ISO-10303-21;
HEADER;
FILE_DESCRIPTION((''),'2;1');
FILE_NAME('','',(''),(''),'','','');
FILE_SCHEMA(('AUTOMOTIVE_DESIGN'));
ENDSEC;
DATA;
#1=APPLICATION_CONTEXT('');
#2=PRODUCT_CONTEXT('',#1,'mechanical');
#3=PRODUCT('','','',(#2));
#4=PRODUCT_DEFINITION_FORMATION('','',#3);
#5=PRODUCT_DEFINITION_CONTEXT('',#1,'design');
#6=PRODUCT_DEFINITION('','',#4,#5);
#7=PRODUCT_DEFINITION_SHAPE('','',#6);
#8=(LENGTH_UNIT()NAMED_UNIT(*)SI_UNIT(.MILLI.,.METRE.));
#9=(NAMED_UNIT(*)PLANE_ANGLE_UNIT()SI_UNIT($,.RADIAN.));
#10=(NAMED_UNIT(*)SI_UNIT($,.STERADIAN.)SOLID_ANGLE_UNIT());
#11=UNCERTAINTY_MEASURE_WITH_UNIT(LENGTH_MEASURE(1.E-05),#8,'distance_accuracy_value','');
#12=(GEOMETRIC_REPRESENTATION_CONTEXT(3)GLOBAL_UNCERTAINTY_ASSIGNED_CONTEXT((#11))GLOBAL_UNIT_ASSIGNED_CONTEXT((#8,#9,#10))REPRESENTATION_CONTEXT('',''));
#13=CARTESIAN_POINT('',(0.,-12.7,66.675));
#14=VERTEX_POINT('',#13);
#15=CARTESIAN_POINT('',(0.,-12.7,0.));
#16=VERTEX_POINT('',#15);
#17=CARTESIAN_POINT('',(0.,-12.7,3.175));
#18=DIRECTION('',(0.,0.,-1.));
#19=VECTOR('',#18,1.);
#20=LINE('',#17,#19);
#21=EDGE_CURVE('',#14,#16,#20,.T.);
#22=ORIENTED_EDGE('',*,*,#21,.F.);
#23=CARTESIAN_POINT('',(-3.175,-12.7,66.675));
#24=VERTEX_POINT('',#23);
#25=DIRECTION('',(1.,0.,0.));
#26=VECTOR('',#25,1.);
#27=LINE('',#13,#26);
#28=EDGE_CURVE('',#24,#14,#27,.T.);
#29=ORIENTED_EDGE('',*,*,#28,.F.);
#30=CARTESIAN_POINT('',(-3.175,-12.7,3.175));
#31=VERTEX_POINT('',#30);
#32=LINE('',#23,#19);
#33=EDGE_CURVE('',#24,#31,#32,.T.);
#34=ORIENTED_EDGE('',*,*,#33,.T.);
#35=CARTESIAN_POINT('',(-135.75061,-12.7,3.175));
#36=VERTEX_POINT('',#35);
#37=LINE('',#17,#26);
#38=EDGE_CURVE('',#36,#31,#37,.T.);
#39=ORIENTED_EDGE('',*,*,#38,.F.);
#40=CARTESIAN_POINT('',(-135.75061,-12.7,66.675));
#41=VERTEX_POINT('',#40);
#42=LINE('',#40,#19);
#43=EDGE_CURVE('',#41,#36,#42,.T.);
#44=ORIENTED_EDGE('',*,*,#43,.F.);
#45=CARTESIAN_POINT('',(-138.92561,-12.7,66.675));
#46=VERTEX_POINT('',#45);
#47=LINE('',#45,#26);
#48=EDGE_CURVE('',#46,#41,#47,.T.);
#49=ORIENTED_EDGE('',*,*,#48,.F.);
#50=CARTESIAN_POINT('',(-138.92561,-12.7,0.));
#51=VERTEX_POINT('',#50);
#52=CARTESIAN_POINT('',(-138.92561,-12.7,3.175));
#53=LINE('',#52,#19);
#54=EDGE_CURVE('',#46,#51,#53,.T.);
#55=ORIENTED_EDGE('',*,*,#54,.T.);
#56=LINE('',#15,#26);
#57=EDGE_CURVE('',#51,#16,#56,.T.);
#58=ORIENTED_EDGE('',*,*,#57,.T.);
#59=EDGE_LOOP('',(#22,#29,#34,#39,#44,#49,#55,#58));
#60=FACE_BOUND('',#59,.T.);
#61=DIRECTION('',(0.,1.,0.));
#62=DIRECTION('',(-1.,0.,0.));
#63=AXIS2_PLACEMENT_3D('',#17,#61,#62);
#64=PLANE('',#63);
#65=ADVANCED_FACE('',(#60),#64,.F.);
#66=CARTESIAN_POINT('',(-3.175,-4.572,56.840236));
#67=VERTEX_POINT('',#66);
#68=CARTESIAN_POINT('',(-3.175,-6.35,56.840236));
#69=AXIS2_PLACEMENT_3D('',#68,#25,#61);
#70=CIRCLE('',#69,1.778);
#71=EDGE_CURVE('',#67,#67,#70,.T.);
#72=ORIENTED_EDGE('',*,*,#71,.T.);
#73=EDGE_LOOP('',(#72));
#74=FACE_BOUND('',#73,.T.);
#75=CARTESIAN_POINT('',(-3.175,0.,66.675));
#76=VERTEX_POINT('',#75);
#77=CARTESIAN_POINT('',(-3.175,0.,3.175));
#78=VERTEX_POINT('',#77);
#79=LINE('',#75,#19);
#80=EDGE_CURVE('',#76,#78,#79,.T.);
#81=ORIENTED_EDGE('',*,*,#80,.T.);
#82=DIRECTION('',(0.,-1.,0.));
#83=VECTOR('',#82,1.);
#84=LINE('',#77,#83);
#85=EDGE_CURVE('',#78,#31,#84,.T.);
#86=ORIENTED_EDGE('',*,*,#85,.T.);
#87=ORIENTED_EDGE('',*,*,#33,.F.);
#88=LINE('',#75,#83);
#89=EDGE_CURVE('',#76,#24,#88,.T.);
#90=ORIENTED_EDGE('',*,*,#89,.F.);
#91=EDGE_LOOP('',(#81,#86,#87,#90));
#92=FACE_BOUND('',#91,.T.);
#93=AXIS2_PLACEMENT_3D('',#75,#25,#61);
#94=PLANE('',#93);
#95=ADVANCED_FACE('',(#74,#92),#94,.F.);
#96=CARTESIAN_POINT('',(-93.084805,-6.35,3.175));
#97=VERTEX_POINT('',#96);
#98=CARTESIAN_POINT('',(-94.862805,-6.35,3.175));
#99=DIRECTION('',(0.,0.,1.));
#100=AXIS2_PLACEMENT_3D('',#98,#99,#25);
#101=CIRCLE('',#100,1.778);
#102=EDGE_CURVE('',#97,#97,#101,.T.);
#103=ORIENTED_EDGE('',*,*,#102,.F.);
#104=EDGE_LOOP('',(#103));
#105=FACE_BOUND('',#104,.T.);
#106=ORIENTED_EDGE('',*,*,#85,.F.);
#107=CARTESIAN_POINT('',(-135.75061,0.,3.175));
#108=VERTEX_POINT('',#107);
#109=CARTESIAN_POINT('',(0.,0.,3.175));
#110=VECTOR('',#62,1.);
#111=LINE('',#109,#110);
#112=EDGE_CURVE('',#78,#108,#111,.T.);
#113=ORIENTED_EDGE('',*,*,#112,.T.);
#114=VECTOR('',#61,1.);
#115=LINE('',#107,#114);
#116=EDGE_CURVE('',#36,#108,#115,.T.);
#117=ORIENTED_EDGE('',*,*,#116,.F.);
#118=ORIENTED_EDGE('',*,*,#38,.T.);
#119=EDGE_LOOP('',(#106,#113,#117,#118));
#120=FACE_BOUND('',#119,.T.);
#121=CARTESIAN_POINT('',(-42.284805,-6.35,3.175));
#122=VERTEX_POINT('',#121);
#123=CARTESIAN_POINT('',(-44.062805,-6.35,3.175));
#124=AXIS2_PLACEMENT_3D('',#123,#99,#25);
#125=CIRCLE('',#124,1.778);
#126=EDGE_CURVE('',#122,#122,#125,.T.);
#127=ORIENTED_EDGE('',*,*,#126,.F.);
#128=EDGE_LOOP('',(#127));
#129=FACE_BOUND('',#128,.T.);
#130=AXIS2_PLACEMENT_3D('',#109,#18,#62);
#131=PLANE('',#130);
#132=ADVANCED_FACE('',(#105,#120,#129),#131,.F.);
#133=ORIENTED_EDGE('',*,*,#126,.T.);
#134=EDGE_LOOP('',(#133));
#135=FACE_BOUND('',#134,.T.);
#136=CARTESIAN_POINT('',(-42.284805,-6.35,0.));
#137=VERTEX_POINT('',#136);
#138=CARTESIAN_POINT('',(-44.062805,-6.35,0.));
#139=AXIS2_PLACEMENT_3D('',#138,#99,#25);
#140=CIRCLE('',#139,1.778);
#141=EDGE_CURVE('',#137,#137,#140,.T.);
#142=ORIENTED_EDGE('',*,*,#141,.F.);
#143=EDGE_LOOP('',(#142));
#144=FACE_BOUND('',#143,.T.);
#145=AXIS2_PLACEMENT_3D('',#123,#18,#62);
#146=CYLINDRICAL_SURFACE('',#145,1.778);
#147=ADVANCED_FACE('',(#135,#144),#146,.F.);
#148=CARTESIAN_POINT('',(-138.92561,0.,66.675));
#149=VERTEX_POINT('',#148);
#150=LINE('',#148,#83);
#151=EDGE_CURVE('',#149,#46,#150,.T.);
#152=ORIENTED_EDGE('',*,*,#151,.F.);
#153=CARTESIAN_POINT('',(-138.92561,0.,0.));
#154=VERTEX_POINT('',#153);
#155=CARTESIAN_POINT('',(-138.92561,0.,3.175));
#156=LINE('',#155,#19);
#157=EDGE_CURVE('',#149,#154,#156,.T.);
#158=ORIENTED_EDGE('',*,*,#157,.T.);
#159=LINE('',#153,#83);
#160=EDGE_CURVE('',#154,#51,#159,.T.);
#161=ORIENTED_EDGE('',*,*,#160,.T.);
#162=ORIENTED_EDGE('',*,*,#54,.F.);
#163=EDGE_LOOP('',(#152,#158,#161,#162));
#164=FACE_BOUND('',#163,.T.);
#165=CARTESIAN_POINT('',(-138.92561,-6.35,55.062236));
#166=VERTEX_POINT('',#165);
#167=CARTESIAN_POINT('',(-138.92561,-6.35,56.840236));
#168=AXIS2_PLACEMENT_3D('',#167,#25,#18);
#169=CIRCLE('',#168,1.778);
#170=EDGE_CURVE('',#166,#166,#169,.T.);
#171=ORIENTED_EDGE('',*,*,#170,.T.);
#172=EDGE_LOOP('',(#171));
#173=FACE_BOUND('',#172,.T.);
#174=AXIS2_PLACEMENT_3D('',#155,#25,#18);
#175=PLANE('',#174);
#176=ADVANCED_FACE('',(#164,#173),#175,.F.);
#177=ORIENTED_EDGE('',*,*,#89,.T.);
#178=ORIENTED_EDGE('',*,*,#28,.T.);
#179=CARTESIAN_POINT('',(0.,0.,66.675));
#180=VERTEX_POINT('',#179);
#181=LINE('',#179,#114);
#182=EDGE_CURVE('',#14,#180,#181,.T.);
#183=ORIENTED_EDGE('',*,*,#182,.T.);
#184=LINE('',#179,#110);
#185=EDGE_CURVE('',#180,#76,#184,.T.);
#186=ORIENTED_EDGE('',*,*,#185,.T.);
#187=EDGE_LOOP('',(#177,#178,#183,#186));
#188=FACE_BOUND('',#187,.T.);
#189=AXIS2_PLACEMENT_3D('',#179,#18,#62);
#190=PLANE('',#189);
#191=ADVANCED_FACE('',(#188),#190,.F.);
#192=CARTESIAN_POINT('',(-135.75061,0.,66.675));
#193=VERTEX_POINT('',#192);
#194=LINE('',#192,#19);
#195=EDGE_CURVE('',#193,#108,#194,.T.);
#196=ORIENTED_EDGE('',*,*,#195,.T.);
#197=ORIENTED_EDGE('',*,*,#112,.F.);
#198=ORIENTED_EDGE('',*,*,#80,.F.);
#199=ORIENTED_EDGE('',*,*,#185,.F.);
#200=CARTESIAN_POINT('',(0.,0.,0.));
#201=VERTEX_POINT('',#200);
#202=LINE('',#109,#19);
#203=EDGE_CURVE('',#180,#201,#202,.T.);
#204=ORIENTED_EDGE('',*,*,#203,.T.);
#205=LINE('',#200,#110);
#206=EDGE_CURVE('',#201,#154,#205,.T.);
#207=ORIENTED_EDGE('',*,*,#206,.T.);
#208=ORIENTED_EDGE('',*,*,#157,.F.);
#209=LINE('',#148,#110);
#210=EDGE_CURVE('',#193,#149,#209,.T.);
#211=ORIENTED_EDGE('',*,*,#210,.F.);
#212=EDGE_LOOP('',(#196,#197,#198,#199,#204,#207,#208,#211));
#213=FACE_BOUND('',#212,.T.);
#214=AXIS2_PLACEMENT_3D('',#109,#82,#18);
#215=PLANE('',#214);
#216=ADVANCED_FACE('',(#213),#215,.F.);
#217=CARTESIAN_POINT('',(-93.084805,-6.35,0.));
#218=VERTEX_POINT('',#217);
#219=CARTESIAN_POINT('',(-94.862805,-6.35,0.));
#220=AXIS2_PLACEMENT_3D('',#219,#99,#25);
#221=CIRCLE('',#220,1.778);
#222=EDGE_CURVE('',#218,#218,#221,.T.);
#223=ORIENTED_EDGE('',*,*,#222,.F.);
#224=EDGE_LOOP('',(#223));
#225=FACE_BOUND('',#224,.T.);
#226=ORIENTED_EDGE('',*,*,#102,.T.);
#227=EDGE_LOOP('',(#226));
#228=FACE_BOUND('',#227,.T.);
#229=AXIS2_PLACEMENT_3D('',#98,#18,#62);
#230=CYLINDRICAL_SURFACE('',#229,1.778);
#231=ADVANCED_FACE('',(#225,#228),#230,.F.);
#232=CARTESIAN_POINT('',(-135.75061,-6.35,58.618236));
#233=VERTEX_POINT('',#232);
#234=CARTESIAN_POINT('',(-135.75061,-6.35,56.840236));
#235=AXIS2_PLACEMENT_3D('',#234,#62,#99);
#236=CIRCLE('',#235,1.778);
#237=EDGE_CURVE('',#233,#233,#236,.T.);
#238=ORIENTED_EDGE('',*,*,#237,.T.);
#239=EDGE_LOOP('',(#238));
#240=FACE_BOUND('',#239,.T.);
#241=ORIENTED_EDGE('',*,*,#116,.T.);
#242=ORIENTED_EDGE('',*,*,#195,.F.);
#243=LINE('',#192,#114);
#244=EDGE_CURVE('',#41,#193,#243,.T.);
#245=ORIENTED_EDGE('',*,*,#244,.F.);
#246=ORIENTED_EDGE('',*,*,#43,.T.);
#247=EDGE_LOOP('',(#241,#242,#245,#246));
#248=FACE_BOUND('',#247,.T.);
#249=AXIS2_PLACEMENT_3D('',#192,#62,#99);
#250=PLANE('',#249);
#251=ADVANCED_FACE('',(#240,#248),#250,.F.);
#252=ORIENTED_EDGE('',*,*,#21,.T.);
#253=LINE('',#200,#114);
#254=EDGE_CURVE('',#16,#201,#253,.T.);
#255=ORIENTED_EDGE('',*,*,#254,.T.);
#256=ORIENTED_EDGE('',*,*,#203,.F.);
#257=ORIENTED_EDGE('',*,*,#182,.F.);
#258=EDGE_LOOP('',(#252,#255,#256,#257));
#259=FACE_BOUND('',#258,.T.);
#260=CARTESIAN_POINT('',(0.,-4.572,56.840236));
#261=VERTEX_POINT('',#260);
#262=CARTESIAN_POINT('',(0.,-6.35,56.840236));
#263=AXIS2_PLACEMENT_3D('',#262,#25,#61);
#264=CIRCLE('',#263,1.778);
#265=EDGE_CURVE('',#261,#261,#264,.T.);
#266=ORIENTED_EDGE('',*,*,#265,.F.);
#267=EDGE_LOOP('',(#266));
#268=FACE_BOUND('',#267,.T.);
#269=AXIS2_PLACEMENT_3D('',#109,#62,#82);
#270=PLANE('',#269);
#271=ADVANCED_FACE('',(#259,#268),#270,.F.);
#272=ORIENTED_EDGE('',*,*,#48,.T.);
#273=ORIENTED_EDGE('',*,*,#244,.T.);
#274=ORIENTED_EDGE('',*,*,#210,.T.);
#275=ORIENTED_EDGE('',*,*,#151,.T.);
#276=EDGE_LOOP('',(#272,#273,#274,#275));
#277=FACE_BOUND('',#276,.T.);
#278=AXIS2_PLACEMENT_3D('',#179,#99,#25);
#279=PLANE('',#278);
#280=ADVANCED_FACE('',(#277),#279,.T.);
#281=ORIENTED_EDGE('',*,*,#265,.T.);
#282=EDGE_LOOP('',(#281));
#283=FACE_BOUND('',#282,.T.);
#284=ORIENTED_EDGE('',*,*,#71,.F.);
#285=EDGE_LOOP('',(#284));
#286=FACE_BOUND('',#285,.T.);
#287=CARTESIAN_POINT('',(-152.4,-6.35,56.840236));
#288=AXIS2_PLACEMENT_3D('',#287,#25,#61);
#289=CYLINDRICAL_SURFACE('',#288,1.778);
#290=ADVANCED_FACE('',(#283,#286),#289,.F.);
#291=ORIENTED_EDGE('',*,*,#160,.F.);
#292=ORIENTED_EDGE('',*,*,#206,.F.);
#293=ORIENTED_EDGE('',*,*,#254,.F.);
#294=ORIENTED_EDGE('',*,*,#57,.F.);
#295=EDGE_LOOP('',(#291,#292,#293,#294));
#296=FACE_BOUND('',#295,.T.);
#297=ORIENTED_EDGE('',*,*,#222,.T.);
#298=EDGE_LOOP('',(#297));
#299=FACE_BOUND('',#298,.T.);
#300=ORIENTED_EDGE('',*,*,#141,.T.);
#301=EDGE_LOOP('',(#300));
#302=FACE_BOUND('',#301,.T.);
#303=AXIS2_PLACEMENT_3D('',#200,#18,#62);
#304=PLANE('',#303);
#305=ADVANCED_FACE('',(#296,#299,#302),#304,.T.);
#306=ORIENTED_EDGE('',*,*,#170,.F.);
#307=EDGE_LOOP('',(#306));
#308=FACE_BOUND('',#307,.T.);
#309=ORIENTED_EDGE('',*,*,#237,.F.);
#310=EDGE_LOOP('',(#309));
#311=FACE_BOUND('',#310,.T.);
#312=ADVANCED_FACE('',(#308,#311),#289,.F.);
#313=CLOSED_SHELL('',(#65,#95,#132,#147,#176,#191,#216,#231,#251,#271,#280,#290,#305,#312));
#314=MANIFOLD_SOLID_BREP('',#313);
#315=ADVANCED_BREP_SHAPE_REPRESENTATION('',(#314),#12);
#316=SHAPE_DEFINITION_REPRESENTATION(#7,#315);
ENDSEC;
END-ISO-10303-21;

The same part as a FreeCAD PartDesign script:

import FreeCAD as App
import Part
import Sketcher

V = App.Vector
Q = App.Units.Quantity


def add_polygon(sketch, points):
    """Adds a closed chain of lines whose ends are joined by coincident constraints."""
    first, n = sketch.GeometryCount, len(points)
    for a, b in zip(points, points[1:] + points[:1]):
        sketch.addGeometry(Part.LineSegment(App.Vector(*a, 0), App.Vector(*b, 0)), False)
    for i in range(n):
        sketch.addConstraint(Sketcher.Constraint("Coincident", first + i, 2, first + (i + 1) % n, 1))

doc = App.newDocument("Part")
params = doc.addObject("Spreadsheet::Sheet", "Params")
for row, (alias, value) in enumerate([
    ("sketch1_diameter", "0.14 in"),
    ("sketch1_height", "0.5 in"),
    ("pad1_length", "0.125 in"),
    ("sketch2_height", "0.5 in"),
    ("sketch2_width", "0.125 in"),
    ("pad2_length", "2.5 in"),
    ("sketch3_diameter", "0.14 in"),
    ("pocket1_length", "6 in"),
], start=1):
    params.set(f"A{row}", alias)
    params.set(f"B{row}", "=" + value)
    params.setAlias(f"B{row}", alias)

body = doc.addObject("PartDesign::Body", "Body")

sketch1 = body.newObject("Sketcher::SketchObject", "Sketch")
sketch1.AttachmentSupport = (doc.getObject("XY_Plane"), [""])
sketch1.MapMode = "FlatFace"
add_polygon(sketch1, [(-138.9, 0), (-138.9, -12.7), (0, -12.7), (0, 0)])
sketch1.addGeometry(Part.Circle(V(-94.9, -6.3, 0), V(0, 0, 1), 1.8), False)
sketch1.addGeometry(Part.Circle(V(-44.1, -6.3, 0), V(0, 0, 1), 1.8), False)
sketch1.addConstraint([
    Sketcher.Constraint("Vertical", 0),
    Sketcher.Constraint("Horizontal", 1),
    Sketcher.Constraint("Vertical", 2),
    Sketcher.Constraint("Horizontal", 3),
    Sketcher.Constraint("Coincident", 2, 2, -1, 1),
    Sketcher.Constraint("Equal", 4, 5),
    Sketcher.Constraint("Horizontal", 4, 3, 5, 3),
    Sketcher.Constraint("Diameter", 4, Q("0.14 in")),
    Sketcher.Constraint("DistanceY", 0, 2, 0, 1, Q("0.5 in")),
    Sketcher.Constraint("DistanceX", 4, 3, 5, 3, Q("2 in")),
    Sketcher.Constraint("DistanceY", 4, 3, -1, 1, Q("0.25 in")),
    Sketcher.Constraint("DistanceX", 1, 1, 1, 2, Q("138.92561 mm")),
    Sketcher.Constraint("DistanceX", 4, 3, -1, 1, Q("94.862805 mm")),
])
sketch1.setExpression("Constraints[11]", "Params.sketch1_diameter")
sketch1.setExpression("Constraints[12]", "Params.sketch1_height")
pad1 = body.newObject("PartDesign::Pad", "Pad")
pad1.Profile = sketch1
pad1.setExpression("Length", "Params.pad1_length")

sketch2 = body.newObject("Sketcher::SketchObject", "Sketch001")
sketch2.AttachmentSupport = (doc.getObject("XY_Plane"), [""])
sketch2.MapMode = "FlatFace"
sketch2.AttachmentOffset = App.Placement(V(0, 0, 0.125 * 25.4), App.Rotation())
add_polygon(sketch2, [(-138.9, 0), (-138.9, -12.7), (-135.8, -12.7), (-135.8, 0)])
add_polygon(sketch2, [(-3.2, 0), (-3.2, -12.7), (0, -12.7), (0, 0)])
sketch2.addConstraint([
    Sketcher.Constraint("Vertical", 0),
    Sketcher.Constraint("Horizontal", 1),
    Sketcher.Constraint("Vertical", 2),
    Sketcher.Constraint("Horizontal", 3),
    Sketcher.Constraint("Vertical", 4),
    Sketcher.Constraint("Horizontal", 5),
    Sketcher.Constraint("Vertical", 6),
    Sketcher.Constraint("Horizontal", 7),
    Sketcher.Constraint("Coincident", 6, 2, -1, 1),
    Sketcher.Constraint("PointOnObject", 2, 2, -1),
    Sketcher.Constraint("Horizontal", 1, 2, 4, 2),
    Sketcher.Constraint("Equal", 3, 5),
    Sketcher.Constraint("DistanceY", 0, 2, 0, 1, Q("0.5 in")),
    Sketcher.Constraint("DistanceX", 1, 1, 1, 2, Q("0.125 in")),
    Sketcher.Constraint("DistanceX", 0, 2, -1, 1, Q("138.92561 mm")),
])
sketch2.setExpression("Constraints[20]", "Params.sketch2_height")
sketch2.setExpression("Constraints[21]", "Params.sketch2_width")
pad2 = body.newObject("PartDesign::Pad", "Pad001")
pad2.Profile = sketch2
pad2.setExpression("Length", "Params.pad2_length")

sketch3 = body.newObject("Sketcher::SketchObject", "Sketch002")
sketch3.AttachmentSupport = (doc.getObject("YZ_Plane"), [""])
sketch3.MapMode = "FlatFace"
sketch3.addGeometry(Part.Circle(V(-6.3, 56.8, 0), V(0, 0, 1), 1.8), False)
sketch3.addConstraint([
    Sketcher.Constraint("Diameter", 0, Q("0.14 in")),
    Sketcher.Constraint("DistanceX", 0, 3, -1, 1, Q("0.25 in")),
    Sketcher.Constraint("DistanceY", -1, 1, 0, 3, Q("56.840236 mm")),
])
sketch3.setExpression("Constraints[0]", "Params.sketch3_diameter")
pocket1 = body.newObject("PartDesign::Pocket", "Pocket")
pocket1.Profile = sketch3
pocket1.setExpression("Length", "Params.pocket1_length")

doc.recompute()
